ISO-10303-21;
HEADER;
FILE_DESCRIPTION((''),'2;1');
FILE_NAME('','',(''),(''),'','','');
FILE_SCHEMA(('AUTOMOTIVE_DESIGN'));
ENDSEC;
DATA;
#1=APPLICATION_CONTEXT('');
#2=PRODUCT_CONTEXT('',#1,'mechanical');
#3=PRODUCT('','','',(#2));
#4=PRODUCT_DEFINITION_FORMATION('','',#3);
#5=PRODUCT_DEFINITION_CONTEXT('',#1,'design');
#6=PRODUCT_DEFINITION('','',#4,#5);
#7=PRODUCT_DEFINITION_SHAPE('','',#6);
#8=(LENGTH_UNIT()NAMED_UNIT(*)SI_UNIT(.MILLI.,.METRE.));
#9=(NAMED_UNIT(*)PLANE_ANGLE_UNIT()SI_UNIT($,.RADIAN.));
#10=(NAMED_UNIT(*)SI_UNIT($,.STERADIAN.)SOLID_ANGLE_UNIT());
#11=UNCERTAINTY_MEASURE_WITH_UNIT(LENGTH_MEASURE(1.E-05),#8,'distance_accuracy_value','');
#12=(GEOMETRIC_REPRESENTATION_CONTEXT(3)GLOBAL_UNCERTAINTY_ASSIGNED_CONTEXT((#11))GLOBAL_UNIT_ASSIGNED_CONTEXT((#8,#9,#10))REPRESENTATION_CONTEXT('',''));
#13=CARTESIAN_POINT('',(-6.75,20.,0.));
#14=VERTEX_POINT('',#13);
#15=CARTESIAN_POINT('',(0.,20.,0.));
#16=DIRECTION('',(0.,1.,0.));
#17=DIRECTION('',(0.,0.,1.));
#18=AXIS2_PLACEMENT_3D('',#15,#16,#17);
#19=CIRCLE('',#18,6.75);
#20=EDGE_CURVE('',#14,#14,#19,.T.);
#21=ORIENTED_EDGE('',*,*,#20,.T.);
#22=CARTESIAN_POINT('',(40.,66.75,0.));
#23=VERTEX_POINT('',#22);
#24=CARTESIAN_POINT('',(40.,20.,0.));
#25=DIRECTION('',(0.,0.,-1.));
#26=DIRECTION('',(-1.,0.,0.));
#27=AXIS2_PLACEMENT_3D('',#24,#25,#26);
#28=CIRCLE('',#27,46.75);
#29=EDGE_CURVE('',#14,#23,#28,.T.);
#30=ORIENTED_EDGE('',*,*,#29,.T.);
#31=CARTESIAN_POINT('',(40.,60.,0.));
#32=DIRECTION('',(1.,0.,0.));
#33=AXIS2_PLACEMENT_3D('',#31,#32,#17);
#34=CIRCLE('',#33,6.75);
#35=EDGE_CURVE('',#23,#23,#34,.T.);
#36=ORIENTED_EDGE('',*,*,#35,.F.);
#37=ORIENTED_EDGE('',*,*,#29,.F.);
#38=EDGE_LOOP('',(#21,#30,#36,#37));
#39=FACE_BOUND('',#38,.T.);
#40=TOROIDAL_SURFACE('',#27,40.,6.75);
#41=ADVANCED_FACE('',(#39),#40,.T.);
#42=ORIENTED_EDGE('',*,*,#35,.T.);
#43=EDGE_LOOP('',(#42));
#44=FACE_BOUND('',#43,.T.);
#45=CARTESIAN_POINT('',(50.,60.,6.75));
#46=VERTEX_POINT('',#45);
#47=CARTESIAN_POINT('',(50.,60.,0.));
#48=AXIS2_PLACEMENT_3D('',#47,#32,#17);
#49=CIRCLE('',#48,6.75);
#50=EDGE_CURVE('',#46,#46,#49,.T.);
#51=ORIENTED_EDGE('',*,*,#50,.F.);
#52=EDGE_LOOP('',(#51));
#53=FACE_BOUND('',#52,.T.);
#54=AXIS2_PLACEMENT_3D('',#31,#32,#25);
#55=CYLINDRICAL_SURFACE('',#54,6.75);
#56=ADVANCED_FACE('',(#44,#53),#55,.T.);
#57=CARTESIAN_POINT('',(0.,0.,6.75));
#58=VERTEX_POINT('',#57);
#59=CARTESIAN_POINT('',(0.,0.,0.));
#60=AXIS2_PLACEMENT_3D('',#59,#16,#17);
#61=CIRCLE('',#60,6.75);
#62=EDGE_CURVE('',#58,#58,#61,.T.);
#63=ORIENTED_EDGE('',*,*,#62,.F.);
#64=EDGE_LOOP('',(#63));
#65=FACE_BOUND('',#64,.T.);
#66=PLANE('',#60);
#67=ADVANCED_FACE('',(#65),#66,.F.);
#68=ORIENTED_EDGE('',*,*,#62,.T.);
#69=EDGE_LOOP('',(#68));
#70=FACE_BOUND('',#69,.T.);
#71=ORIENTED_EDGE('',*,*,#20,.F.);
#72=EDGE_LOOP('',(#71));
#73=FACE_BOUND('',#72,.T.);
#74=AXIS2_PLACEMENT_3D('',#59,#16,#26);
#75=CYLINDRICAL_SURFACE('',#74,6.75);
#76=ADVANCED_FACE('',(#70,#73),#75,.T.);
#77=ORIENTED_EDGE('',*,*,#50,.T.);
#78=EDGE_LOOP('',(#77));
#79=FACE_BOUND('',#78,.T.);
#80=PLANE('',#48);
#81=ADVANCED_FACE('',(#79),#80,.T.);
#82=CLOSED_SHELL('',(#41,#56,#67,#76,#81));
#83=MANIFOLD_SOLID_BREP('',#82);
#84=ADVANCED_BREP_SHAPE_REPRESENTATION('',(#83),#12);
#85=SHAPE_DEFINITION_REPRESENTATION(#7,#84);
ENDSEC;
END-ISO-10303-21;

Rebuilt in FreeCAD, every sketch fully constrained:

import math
import FreeCAD as App
import Part
import Sketcher
from FreeCAD import Vector
Q = App.Units.Quantity

doc = App.newDocument("Part")
body = doc.addObject("PartDesign::Body", "Body")

sketch1 = body.newObject("Sketcher::SketchObject", "Sketch")
sketch1.AttachmentSupport = (doc.getObject("XZ_Plane"), [""])
sketch1.MapMode = "FlatFace"
sketch1.addGeometry(Part.Circle(Vector(0, 0, 0), Vector(0, 0, 1), 7), False)
sketch1.addConstraint([
    Sketcher.Constraint("Coincident", 0, 3, -1, 1),
    Sketcher.Constraint("Diameter", 0, Q("13.5 mm")),
])

sketch2 = body.newObject("Sketcher::SketchObject", "Sketch001")
sketch2.AttachmentSupport = (doc.getObject("XY_Plane"), [""])
sketch2.MapMode = "FlatFace"
sketch2.addGeometry([
    Part.LineSegment(Vector(0, 0, 0), Vector(0, 20, 0)),
    Part.ArcOfCircle(Part.Circle(Vector(40, 20, 0), Vector(0, 0, 1), 40), math.radians(90), math.radians(180)),
    Part.LineSegment(Vector(40, 60, 0), Vector(50, 60, 0)),
], False)
sketch2.addConstraint([
    Sketcher.Constraint("Tangent", 0, 2, 1, 2),
    Sketcher.Constraint("Tangent", 1, 1, 2, 1),
    Sketcher.Constraint("Vertical", 0),
    Sketcher.Constraint("Horizontal", 2),
    Sketcher.Constraint("Coincident", 0, 1, -1, 1),
    Sketcher.Constraint("Radius", 1, Q("40 mm")),
    Sketcher.Constraint("DistanceX", 2, 1, 2, 2, Q("10 mm")),
    Sketcher.Constraint("DistanceY", 0, 1, 0, 2, Q("20 mm")),
])
doc.recompute()

additivepipe = body.newObject("PartDesign::AdditivePipe", "AdditivePipe")
additivepipe.Profile = sketch1
additivepipe.Spine = (sketch2, ["Edge1", "Edge2", "Edge3"])

doc.recompute()
